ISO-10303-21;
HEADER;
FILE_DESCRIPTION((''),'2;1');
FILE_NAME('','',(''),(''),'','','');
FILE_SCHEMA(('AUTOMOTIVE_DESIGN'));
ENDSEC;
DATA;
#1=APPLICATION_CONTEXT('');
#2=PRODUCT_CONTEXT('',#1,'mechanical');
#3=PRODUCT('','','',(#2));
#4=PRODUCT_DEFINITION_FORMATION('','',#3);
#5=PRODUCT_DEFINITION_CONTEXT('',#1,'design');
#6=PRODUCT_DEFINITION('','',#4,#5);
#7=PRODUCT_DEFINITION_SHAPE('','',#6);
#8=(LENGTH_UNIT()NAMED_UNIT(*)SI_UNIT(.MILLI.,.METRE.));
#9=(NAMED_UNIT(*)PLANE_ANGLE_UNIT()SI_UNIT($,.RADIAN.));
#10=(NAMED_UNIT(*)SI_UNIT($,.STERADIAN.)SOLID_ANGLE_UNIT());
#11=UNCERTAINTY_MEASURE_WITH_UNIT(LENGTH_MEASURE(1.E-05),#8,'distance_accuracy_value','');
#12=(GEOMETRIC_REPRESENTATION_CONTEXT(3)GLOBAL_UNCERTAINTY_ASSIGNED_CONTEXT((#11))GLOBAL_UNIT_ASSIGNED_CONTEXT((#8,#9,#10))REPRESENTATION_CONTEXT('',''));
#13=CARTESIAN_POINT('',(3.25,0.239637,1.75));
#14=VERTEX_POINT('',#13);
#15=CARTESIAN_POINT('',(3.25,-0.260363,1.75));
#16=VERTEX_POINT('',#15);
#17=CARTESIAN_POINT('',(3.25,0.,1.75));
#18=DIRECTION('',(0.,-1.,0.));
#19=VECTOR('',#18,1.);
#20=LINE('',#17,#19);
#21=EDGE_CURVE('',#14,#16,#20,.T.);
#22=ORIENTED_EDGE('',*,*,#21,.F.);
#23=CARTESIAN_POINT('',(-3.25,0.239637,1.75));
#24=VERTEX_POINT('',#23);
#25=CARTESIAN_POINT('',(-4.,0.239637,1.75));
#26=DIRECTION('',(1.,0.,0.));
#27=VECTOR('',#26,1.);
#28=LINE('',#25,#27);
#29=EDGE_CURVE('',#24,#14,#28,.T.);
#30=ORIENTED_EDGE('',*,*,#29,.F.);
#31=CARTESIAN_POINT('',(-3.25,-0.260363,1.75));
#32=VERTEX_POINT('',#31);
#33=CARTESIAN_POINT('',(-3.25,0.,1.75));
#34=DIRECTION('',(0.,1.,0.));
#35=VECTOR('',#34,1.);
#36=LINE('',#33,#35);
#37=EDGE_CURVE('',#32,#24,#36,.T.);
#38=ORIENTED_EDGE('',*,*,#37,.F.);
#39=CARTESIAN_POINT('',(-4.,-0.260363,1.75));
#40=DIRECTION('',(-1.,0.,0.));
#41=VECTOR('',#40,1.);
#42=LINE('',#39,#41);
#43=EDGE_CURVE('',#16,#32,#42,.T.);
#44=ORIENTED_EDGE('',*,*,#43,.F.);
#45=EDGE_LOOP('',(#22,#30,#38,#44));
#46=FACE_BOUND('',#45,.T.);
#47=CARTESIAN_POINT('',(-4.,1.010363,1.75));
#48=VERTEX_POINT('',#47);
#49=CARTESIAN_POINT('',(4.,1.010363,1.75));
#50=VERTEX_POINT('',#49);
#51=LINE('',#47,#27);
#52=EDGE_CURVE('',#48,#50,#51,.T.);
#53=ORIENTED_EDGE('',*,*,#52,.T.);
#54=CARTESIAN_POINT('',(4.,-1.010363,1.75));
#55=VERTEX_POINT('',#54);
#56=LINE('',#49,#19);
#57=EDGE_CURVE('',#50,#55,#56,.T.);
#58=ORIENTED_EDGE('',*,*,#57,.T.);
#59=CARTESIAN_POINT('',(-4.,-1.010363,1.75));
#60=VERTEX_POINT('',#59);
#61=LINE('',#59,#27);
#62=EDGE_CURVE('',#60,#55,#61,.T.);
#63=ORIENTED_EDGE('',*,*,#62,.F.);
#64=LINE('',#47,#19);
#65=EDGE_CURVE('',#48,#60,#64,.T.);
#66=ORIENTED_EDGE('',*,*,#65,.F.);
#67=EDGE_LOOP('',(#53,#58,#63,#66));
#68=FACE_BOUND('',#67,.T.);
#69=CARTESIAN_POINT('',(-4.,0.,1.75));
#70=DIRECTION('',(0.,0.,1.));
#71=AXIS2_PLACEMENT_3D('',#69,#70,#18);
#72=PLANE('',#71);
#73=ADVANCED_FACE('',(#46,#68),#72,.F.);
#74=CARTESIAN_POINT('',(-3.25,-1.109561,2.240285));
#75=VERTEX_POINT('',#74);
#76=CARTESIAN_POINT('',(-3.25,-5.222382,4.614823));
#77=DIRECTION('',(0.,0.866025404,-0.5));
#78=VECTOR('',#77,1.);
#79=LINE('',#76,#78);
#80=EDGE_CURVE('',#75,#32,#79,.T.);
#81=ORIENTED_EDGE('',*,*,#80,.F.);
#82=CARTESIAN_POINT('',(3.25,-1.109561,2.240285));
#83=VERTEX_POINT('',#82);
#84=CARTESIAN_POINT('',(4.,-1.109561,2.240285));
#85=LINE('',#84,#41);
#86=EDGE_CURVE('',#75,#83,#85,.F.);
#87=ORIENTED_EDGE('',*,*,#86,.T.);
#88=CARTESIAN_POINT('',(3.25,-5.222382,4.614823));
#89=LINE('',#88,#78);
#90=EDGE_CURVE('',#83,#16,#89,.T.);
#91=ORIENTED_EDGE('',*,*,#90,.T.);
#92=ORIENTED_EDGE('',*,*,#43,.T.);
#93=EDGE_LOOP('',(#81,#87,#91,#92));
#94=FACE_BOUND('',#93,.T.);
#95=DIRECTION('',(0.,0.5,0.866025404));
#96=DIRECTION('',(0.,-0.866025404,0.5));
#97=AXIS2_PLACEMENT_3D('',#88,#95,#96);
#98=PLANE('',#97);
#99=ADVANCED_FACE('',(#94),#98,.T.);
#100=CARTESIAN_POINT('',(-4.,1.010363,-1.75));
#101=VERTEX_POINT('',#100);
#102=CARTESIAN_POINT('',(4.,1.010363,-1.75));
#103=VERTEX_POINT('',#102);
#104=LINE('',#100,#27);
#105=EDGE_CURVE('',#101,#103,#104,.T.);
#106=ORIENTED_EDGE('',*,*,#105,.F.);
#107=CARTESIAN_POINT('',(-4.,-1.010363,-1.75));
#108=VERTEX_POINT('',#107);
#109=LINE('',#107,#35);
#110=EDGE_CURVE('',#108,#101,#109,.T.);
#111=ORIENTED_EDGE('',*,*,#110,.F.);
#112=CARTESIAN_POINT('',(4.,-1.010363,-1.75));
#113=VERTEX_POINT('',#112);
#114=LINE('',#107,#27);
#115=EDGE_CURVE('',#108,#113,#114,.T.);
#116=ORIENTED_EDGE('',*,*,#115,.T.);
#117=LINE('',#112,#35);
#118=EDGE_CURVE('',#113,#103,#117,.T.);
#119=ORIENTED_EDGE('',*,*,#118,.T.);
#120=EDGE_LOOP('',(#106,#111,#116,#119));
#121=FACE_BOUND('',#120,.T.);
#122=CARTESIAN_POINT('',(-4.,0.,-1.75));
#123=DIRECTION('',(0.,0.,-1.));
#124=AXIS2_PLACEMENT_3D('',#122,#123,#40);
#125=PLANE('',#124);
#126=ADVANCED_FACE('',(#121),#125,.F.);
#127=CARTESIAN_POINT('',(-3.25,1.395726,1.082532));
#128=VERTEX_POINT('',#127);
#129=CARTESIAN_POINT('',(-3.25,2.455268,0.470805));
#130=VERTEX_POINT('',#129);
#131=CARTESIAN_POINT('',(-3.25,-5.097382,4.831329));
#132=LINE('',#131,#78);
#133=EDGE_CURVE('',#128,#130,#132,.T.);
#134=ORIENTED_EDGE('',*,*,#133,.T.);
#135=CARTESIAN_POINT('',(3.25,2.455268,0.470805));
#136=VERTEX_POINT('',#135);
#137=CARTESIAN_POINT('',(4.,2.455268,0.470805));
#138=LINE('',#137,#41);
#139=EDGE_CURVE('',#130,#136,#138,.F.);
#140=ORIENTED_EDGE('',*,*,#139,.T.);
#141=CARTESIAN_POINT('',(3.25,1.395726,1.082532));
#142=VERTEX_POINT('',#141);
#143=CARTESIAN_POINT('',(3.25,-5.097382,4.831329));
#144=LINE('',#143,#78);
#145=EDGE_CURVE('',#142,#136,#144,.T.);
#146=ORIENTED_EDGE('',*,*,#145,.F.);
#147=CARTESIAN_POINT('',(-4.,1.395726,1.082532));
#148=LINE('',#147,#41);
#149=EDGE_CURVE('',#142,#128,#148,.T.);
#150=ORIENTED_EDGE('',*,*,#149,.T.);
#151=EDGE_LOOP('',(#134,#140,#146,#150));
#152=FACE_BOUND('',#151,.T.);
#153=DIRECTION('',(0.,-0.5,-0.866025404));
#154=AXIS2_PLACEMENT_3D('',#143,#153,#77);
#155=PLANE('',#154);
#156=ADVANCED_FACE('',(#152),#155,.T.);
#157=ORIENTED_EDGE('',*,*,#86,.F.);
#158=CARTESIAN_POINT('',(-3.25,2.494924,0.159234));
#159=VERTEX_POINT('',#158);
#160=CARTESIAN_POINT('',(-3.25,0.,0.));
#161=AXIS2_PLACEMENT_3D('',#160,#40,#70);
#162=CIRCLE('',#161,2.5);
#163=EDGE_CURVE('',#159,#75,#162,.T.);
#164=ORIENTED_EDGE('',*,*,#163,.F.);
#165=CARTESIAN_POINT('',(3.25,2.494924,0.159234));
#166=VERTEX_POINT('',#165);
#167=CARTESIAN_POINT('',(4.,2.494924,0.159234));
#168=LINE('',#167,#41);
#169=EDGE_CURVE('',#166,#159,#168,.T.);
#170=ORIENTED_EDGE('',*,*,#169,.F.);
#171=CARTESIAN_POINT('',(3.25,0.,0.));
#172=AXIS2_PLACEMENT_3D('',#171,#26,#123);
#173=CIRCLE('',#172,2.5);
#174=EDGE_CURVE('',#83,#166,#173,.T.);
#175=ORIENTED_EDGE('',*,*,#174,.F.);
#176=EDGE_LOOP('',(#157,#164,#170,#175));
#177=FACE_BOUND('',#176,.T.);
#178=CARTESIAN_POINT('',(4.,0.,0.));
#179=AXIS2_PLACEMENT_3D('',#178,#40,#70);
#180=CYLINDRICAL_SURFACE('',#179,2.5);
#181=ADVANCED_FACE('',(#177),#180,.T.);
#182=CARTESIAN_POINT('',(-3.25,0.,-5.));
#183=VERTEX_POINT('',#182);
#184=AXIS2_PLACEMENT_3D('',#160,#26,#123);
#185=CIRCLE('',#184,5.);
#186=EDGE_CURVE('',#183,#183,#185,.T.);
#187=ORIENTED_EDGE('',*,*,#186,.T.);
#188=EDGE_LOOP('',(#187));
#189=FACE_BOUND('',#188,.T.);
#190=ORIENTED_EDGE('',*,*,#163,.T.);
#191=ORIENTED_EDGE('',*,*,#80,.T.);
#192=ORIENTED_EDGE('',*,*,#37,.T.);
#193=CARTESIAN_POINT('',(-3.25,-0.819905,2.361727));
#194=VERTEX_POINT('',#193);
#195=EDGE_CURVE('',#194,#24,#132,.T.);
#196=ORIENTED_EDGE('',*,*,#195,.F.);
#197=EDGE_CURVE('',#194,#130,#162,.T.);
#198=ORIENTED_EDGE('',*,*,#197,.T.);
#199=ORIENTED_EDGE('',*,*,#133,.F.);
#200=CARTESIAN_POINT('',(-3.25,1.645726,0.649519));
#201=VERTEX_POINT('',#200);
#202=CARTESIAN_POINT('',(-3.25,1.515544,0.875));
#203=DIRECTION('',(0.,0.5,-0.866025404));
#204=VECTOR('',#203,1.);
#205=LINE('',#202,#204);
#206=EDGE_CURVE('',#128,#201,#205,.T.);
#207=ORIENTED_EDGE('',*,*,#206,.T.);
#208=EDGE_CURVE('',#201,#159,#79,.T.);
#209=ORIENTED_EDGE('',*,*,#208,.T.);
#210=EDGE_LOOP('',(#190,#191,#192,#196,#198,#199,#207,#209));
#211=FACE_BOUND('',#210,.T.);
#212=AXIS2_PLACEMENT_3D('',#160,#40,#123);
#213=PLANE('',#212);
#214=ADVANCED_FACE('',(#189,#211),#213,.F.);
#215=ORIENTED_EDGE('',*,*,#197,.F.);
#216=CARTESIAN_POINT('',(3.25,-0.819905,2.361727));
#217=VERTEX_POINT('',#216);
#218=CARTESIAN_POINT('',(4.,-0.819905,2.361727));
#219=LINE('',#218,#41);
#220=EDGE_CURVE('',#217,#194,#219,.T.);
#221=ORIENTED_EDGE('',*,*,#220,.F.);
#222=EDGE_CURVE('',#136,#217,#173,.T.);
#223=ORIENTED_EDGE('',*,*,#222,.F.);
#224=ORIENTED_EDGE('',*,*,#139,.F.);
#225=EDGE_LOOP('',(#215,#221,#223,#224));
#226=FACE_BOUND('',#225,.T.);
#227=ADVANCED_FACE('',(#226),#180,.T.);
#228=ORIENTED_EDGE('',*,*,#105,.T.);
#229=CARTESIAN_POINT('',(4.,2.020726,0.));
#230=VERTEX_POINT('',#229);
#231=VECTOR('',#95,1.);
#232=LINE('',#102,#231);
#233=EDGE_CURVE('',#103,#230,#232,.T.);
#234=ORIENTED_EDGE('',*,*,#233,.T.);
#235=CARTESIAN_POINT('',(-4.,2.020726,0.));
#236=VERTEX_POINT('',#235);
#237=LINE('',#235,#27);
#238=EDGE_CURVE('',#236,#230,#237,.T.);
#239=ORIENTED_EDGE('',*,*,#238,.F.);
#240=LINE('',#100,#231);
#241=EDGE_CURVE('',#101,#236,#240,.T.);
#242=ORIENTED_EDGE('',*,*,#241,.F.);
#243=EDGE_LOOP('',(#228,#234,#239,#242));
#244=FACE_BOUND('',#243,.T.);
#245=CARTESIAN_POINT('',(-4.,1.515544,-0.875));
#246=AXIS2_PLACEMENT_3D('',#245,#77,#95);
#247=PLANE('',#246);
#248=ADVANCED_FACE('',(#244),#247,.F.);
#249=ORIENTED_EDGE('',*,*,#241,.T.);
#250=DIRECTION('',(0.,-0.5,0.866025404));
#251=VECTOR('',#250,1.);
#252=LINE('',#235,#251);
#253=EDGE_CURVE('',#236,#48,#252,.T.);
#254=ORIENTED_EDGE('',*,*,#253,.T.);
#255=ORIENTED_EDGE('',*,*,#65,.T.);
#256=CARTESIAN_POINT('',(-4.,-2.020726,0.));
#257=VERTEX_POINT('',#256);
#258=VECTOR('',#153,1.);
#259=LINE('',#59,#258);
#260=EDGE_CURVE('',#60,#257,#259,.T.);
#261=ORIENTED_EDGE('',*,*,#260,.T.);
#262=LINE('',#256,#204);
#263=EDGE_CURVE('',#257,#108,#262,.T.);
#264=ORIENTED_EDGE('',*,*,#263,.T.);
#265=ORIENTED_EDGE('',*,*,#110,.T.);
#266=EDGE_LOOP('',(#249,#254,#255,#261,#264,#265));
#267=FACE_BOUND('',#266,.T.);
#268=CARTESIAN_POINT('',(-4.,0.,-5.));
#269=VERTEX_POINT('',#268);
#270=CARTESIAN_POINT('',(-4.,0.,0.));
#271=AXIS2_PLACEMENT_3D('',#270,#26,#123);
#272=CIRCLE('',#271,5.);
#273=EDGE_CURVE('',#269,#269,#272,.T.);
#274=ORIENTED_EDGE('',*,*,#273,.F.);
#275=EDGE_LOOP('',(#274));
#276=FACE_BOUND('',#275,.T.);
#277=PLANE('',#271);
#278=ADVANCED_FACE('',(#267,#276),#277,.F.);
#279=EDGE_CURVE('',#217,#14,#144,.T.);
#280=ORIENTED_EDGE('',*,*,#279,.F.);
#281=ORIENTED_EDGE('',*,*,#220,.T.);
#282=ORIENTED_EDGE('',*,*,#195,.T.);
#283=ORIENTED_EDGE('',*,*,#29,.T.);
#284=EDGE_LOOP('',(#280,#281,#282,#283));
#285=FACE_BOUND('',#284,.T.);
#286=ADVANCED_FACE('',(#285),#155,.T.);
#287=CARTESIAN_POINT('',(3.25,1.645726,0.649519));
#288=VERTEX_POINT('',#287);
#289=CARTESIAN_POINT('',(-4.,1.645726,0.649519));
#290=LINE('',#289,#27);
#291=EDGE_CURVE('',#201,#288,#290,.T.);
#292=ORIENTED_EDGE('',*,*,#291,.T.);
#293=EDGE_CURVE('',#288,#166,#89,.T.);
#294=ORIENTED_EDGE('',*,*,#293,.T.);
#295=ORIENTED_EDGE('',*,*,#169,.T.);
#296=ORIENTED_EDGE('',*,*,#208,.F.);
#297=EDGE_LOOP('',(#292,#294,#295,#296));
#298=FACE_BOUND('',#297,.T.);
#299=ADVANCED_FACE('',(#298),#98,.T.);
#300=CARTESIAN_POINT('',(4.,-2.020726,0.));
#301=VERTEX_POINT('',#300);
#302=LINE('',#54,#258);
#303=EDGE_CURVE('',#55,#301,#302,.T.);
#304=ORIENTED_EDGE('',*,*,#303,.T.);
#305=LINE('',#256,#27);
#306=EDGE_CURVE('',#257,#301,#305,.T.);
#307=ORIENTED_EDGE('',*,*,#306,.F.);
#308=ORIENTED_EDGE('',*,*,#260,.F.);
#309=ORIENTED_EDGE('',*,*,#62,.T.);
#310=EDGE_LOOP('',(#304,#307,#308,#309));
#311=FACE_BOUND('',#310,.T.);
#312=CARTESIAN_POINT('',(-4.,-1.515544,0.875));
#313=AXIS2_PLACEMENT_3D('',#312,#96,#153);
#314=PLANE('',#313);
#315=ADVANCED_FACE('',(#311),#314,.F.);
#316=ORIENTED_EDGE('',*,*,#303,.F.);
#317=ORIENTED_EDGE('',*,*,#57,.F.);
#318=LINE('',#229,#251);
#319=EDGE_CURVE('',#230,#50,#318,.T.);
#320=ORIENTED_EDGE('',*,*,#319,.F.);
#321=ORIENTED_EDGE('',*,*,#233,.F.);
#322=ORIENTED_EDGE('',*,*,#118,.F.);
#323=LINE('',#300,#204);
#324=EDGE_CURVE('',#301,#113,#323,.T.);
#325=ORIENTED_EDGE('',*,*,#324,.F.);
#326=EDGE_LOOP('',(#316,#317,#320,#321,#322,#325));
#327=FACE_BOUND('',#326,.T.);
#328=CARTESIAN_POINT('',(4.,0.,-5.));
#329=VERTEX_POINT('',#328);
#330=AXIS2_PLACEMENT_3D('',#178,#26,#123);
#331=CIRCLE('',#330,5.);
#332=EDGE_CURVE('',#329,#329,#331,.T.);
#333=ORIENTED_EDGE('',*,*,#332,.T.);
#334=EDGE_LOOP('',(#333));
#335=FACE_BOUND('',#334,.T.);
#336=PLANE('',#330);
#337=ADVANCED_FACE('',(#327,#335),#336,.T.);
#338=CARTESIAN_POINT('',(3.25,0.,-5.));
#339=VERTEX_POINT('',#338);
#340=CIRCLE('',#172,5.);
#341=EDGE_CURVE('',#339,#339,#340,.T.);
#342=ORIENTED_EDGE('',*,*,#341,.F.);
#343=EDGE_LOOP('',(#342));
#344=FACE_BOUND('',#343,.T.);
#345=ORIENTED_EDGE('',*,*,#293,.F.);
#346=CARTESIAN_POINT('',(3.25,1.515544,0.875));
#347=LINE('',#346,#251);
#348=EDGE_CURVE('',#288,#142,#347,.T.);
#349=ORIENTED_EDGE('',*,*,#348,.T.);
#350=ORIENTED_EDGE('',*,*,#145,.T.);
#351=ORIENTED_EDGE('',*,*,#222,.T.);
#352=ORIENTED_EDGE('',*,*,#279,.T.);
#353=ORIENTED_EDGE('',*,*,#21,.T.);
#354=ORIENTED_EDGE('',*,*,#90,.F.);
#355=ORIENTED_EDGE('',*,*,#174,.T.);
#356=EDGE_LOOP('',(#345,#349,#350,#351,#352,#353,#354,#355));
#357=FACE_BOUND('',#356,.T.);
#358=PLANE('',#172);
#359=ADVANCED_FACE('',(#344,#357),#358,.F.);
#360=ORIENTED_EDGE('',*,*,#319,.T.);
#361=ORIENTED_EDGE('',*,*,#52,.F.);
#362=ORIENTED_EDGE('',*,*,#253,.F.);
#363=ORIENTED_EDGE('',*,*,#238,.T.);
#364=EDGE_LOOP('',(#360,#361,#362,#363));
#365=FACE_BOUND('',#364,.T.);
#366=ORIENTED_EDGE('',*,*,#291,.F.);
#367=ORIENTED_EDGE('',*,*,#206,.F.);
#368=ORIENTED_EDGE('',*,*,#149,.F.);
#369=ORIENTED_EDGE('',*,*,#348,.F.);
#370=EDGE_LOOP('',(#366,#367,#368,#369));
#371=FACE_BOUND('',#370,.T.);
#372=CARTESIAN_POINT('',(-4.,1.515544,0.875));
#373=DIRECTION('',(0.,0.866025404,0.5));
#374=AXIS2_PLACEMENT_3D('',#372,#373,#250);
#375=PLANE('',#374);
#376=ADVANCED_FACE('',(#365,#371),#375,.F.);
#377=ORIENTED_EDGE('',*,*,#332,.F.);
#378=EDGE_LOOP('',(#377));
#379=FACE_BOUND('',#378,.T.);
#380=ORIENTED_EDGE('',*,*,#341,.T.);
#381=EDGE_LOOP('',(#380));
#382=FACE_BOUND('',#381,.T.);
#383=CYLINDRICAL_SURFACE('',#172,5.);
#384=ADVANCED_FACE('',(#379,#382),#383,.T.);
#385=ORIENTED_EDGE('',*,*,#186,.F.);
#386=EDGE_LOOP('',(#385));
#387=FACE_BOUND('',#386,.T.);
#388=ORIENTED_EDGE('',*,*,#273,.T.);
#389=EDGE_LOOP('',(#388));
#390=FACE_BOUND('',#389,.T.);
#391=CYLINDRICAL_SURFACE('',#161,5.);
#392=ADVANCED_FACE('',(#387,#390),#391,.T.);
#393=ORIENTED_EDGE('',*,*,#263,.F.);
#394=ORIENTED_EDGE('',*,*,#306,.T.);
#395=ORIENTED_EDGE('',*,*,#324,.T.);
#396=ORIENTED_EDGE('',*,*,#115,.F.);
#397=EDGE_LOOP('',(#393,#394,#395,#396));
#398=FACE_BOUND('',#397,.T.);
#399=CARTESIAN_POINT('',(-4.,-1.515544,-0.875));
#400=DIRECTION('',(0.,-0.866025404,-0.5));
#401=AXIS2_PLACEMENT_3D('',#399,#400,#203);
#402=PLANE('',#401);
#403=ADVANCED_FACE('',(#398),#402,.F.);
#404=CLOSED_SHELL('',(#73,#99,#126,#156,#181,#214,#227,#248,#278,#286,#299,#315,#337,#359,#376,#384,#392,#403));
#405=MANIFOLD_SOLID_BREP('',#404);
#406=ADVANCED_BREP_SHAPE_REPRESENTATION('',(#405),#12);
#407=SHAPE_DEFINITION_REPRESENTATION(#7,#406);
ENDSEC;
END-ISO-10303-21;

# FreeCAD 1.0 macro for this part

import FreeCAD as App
import Part
import Sketcher
Q = App.Units.Quantity

doc = App.newDocument("Part")
params = doc.addObject("Spreadsheet::Sheet", "Params")
for row, (alias, value) in enumerate([
    ("sketch1_diameter", "5 mm"),
    ("pad1_length", "8 mm"),
    ("sketch2_diameter", "10 mm"),
    ("pad2_length", "0.75 mm"),
    ("sketch4_width", "6.5 mm"),
    ("sketch4_height", "0.25 mm"),
], start=1):
    params.set(f"A{row}", alias)
    params.set(f"B{row}", "=" + value)
    params.setAlias(f"B{row}", alias)

body = doc.addObject("PartDesign::Body", "Body")

# Sketch on YZ plane
sketch1 = body.newObject("Sketcher::SketchObject", "Sketch")
sketch1.AttachmentSupport = (doc.getObject("YZ_Plane"), [""])
sketch1.MapMode = "FlatFace"
sketch1.addGeometry(Part.Circle(App.Vector(0, 0, 0), App.Vector(0, 0, 1), 2.5), False)
sketch1.addConstraint([
    Sketcher.Constraint("Coincident", 0, 3, -1, 1),
    Sketcher.Constraint("Diameter", 0, Q("5 mm")),
])
sketch1.setExpression("Constraints[1]", "Params.sketch1_diameter")
pad1 = body.newObject("PartDesign::Pad", "Pad")
pad1.Profile = sketch1
pad1.setExpression("Length", "Params.pad1_length")
pad1.Midplane = True

# Sketch on YZ plane
sketch2 = body.newObject("Sketcher::SketchObject", "Sketch001")
sketch2.AttachmentSupport = (doc.getObject("YZ_Plane"), [""])
sketch2.MapMode = "FlatFace"
sketch2.AttachmentOffset = App.Placement(App.Vector(0, 0, 4), App.Rotation())
sketch2.addGeometry(Part.Circle(App.Vector(0, 0, 0), App.Vector(0, 0, 1), 5), False)
sketch2.addConstraint([
    Sketcher.Constraint("Coincident", 0, 3, -1, 1),
    Sketcher.Constraint("Diameter", 0, Q("10 mm")),
])
sketch2.setExpression("Constraints[1]", "Params.sketch2_diameter")
pad2 = body.newObject("PartDesign::Pad", "Pad001")
pad2.Profile = sketch2
pad2.setExpression("Length", "Params.pad2_length")
pad2.Reversed = True
doc.recompute()

mirrored = body.newObject("PartDesign::Mirrored", "Mirrored")
mirrored.Originals = [pad2]
mirrored.MirrorPlane = (doc.getObject("YZ_Plane"), [""])
body.Tip = mirrored

# Sketch on YZ plane
sketch3 = body.newObject("Sketcher::SketchObject", "Sketch002")
sketch3.AttachmentSupport = (doc.getObject("YZ_Plane"), [""])
sketch3.MapMode = "FlatFace"
sketch3.addGeometry([
    Part.LineSegment(App.Vector(1, -1.8, 0), App.Vector(1.5, -0.9, 0)),  # 0
    Part.LineSegment(App.Vector(1.5, -0.9, 0), App.Vector(2, 0, 0)),  # 1
    Part.LineSegment(App.Vector(2, 0, 0), App.Vector(1.5, 0.9, 0)),  # 2
    Part.LineSegment(App.Vector(1.5, 0.9, 0), App.Vector(1, 1.8, 0)),  # 3
    Part.LineSegment(App.Vector(1, 1.8, 0), App.Vector(-1, 1.8, 0)),  # 4
    Part.LineSegment(App.Vector(-1, 1.8, 0), App.Vector(-1.5, 0.9, 0)),  # 5
    Part.LineSegment(App.Vector(-1.5, 0.9, 0), App.Vector(-2, 0, 0)),  # 6
    Part.LineSegment(App.Vector(-2, 0, 0), App.Vector(-1.5, -0.9, 0)),  # 7
    Part.LineSegment(App.Vector(-1.5, -0.9, 0), App.Vector(-1, -1.8, 0)),  # 8
    Part.LineSegment(App.Vector(-1, -1.8, 0), App.Vector(1, -1.8, 0)),  # 9
], False)
sketch3.addConstraint([
    Sketcher.Constraint("Coincident", 0, 2, 1, 1),
    Sketcher.Constraint("Coincident", 1, 2, 2, 1),
    Sketcher.Constraint("Coincident", 2, 2, 3, 1),
    Sketcher.Constraint("Coincident", 3, 2, 4, 1),
    Sketcher.Constraint("Coincident", 4, 2, 5, 1),
    Sketcher.Constraint("Coincident", 5, 2, 6, 1),
    Sketcher.Constraint("Coincident", 6, 2, 7, 1),
    Sketcher.Constraint("Coincident", 7, 2, 8, 1),
    Sketcher.Constraint("Coincident", 8, 2, 9, 1),
    Sketcher.Constraint("Coincident", 9, 2, 0, 1),
    Sketcher.Constraint("Horizontal", 4),
    Sketcher.Constraint("Horizontal", 9),
    Sketcher.Constraint("Symmetric", 0, 2, 5, 2, -1, 1),
    Sketcher.Constraint("Symmetric", 1, 2, 6, 2, -1, 1),
    Sketcher.Constraint("Symmetric", 2, 2, 7, 2, -1, 1),
    Sketcher.Constraint("Symmetric", 3, 2, 8, 2, -1, 1),
    Sketcher.Constraint("Symmetric", 2, 2, 5, 2, -2),
    Sketcher.Constraint("PointOnObject", 1, 2, -1),
    Sketcher.Constraint("Parallel", 0, 1),
    Sketcher.Constraint("Parallel", 2, 3),
    Sketcher.Constraint("Parallel", 1, 5),
    Sketcher.Constraint("Equal", 0, 1),
    Sketcher.Constraint("Angle", 0, Q("60 deg")),
    Sketcher.Constraint("DistanceY", -1, 1, 3, 2, Q("1.75 mm")),
    Sketcher.Constraint("DistanceX", 4, 2, 4, 1, Q("2.020726 mm")),
])
pocket1 = body.newObject("PartDesign::Pocket", "Pocket")
pocket1.Profile = sketch3
pocket1.Type = "ThroughAll"
pocket1.Midplane = True

# Sketch on an angled plane
sketch4 = body.newObject("Sketcher::SketchObject", "Sketch003")
sketch4.Placement = App.Placement(App.Vector(0, 1.010363, -1.75), App.Rotation(App.Vector(1, 0, 0), App.Vector(0, 0.5, 0.866025404), App.Vector(0, -0.866025404, 0.5), "ZXY"))
sketch4.addGeometry([
    Part.LineSegment(App.Vector(-3.25, 2.65, 0), App.Vector(-3.25, 2.4, 0)),
    Part.LineSegment(App.Vector(-3.25, 2.4, 0), App.Vector(3.25, 2.4, 0)),
    Part.LineSegment(App.Vector(3.25, 2.4, 0), App.Vector(3.25, 2.65, 0)),
    Part.LineSegment(App.Vector(3.25, 2.65, 0), App.Vector(-3.25, 2.65, 0)),
], False)
sketch4.addConstraint([
    Sketcher.Constraint("Coincident", 0, 2, 1, 1),
    Sketcher.Constraint("Coincident", 1, 2, 2, 1),
    Sketcher.Constraint("Coincident", 2, 2, 3, 1),
    Sketcher.Constraint("Coincident", 3, 2, 0, 1),
    Sketcher.Constraint("Vertical", 0),
    Sketcher.Constraint("Horizontal", 1),
    Sketcher.Constraint("Vertical", 2),
    Sketcher.Constraint("Horizontal", 3),
    Sketcher.Constraint("DistanceX", 1, 1, 1, 2, Q("6.5 mm")),
    Sketcher.Constraint("DistanceY", 0, 2, 0, 1, Q("0.25 mm")),
    Sketcher.Constraint("DistanceX", 0, 2, -1, 1, Q("3.25 mm")),
    Sketcher.Constraint("DistanceY", -1, 1, 0, 2, Q("2.395726 mm")),
])
sketch4.setExpression("Constraints[8]", "Params.sketch4_width")
sketch4.setExpression("Constraints[9]", "Params.sketch4_height")
pocket2 = body.newObject("PartDesign::Pocket", "Pocket001")
pocket2.Profile = sketch4
pocket2.Type = "ThroughAll"
pocket2.Midplane = True

doc.recompute()
